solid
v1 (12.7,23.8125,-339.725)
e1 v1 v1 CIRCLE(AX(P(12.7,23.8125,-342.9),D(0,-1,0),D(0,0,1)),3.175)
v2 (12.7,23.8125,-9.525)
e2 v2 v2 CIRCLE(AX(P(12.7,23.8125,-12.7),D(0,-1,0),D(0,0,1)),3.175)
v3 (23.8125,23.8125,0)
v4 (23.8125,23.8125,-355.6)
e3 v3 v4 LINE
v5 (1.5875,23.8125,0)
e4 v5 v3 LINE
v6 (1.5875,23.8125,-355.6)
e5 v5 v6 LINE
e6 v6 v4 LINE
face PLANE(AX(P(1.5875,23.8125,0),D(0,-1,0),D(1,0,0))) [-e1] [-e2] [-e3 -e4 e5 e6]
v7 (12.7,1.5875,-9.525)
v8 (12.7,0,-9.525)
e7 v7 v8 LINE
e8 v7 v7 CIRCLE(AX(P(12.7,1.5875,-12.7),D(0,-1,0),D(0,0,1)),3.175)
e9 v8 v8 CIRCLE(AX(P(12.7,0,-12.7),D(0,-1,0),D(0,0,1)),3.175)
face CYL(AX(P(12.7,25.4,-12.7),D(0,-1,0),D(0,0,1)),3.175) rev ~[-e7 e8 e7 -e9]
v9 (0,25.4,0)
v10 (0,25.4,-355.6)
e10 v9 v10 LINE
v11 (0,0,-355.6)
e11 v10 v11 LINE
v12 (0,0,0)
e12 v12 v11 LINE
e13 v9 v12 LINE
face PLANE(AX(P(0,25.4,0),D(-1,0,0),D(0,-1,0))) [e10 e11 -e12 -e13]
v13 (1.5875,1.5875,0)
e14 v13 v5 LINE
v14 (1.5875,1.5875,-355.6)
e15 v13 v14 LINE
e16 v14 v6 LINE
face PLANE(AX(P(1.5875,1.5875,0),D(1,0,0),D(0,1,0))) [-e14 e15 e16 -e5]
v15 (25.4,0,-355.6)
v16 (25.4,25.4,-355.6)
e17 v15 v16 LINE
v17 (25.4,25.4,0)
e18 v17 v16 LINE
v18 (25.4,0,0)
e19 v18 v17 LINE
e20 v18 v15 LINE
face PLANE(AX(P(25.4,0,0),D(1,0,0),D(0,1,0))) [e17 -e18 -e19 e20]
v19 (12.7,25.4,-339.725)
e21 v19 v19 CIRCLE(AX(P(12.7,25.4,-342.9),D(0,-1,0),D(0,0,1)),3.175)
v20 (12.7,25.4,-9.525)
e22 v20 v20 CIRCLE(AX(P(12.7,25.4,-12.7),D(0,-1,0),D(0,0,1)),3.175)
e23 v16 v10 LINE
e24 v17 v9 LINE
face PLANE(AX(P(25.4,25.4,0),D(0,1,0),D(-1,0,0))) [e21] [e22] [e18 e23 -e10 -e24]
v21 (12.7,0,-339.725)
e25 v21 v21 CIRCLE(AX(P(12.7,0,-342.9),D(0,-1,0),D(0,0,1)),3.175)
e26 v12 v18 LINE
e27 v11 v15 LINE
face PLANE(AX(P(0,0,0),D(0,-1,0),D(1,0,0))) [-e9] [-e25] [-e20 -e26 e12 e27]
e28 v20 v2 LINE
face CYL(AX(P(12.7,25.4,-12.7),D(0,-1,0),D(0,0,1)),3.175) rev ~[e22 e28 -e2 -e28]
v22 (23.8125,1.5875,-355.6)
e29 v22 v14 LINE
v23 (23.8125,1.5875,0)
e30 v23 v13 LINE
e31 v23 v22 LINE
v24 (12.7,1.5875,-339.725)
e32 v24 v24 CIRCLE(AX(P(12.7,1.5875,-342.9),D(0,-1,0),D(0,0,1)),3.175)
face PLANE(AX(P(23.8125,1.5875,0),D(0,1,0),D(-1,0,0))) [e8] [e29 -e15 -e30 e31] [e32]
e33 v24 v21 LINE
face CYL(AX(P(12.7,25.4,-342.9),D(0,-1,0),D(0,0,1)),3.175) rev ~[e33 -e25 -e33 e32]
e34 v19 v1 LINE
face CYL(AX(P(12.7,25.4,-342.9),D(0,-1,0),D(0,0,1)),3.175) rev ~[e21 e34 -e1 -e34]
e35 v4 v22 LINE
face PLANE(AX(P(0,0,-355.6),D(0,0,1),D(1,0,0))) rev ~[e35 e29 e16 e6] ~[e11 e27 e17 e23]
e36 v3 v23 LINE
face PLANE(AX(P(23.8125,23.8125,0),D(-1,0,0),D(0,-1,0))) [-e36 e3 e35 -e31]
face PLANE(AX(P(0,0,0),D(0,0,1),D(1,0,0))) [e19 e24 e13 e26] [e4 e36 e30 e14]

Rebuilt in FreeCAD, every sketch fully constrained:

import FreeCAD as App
import Part
import Sketcher
from FreeCAD import Vector
Q = App.Units.Quantity

doc = App.newDocument("Part")
params = doc.addObject("Spreadsheet::Sheet", "Params")
for row, (alias, value) in enumerate([
    ("sketch1_width", "1 in"),
    ("pad1_length", "14 in"),
    ("sketch2_diameter", "0.25 in"),
    ("hole_diameter", "0.25 in"),
    ("hole_depth", "1 in"),
], start=1):
    params.set(f"A{row}", alias)
    params.set(f"B{row}", "=" + value)
    params.setAlias(f"B{row}", alias)

body = doc.addObject("PartDesign::Body", "Body")

sketch1 = body.newObject("Sketcher::SketchObject", "Sketch")
sketch1.AttachmentSupport = (doc.getObject("XY_Plane"), [""])
sketch1.MapMode = "FlatFace"
sketch1.addGeometry([
    Part.LineSegment(Vector(0, 25, 0), Vector(0, 0, 0)),
    Part.LineSegment(Vector(0, 0, 0), Vector(25, 0, 0)),
    Part.LineSegment(Vector(25, 0, 0), Vector(25, 25, 0)),
    Part.LineSegment(Vector(25, 25, 0), Vector(0, 25, 0)),
    Part.LineSegment(Vector(2, 2, 0), Vector(2, 24, 0)),
    Part.LineSegment(Vector(2, 24, 0), Vector(24, 24, 0)),
    Part.LineSegment(Vector(24, 24, 0), Vector(24, 2, 0)),
    Part.LineSegment(Vector(24, 2, 0), Vector(2, 2, 0)),
], False)
sketch1.addConstraint([
    Sketcher.Constraint("Coincident", 0, 2, 1, 1),
    Sketcher.Constraint("Coincident", 1, 2, 2, 1),
    Sketcher.Constraint("Coincident", 2, 2, 3, 1),
    Sketcher.Constraint("Coincident", 3, 2, 0, 1),
    Sketcher.Constraint("Coincident", 4, 2, 5, 1),
    Sketcher.Constraint("Coincident", 5, 2, 6, 1),
    Sketcher.Constraint("Coincident", 6, 2, 7, 1),
    Sketcher.Constraint("Coincident", 7, 2, 4, 1),
    Sketcher.Constraint("Vertical", 0),
    Sketcher.Constraint("Horizontal", 1),
    Sketcher.Constraint("Vertical", 2),
    Sketcher.Constraint("Horizontal", 3),
    Sketcher.Constraint("Vertical", 4),
    Sketcher.Constraint("Horizontal", 5),
    Sketcher.Constraint("Vertical", 6),
    Sketcher.Constraint("Horizontal", 7),
    Sketcher.Constraint("Coincident", 0, 2, -1, 1),
    Sketcher.Constraint("Equal", 3, 0),
    Sketcher.Constraint("Equal", 7, 4),
    Sketcher.Constraint("DistanceX", 1, 1, 1, 2, Q("1 in")),
    Sketcher.Constraint("DistanceX", -1, 1, 4, 2, Q("0.0625 in")),
    Sketcher.Constraint("DistanceY", -1, 1, 6, 2, Q("0.0625 in")),
    Sketcher.Constraint("DistanceY", 4, 2, 3, 2, Q("0.0625 in")),
])
sketch1.setExpression("Constraints[19]", "Params.sketch1_width")
pad1 = body.newObject("PartDesign::Pad", "Pad")
pad1.Profile = sketch1
pad1.setExpression("Length", "Params.pad1_length")
pad1.Reversed = True

sketch2 = body.newObject("Sketcher::SketchObject", "Sketch001")
sketch2.AttachmentSupport = (doc.getObject("XZ_Plane"), [""])
sketch2.MapMode = "FlatFace"
sketch2.AttachmentOffset = App.Placement(Vector(0, 0, -1 * 25.4), App.Rotation())
sketch2.addGeometry([
    Part.Circle(Vector(12.7, -12.7, 0), Vector(0, 0, 1), 3.2),
    Part.Circle(Vector(12.7, -342.9, 0), Vector(0, 0, 1), 3.2),
], False)
sketch2.addConstraint([
    Sketcher.Constraint("Equal", 0, 1),
    Sketcher.Constraint("Vertical", 0, 3, 1, 3),
    Sketcher.Constraint("Diameter", 0, Q("0.25 in")),
    Sketcher.Constraint("DistanceY", 1, 3, 0, 3, Q("13 in")),
    Sketcher.Constraint("DistanceX", -1, 1, 0, 3, Q("0.5 in")),
    Sketcher.Constraint("DistanceY", 0, 3, -1, 1, Q("0.5 in")),
])
sketch2.setExpression("Constraints[2]", "Params.sketch2_diameter")
doc.recompute()
hole = body.newObject("PartDesign::Hole", "Hole")
hole.Profile = sketch2
hole.ThreadType = "None"
hole.setExpression("Diameter", "Params.hole_diameter")
hole.DepthType = "Dimension"
hole.setExpression("Depth", "Params.hole_depth")
hole.DrillPoint = "Angled"
hole.DrillPointAngle = 118
hole.Reversed = True

doc.recompute()
